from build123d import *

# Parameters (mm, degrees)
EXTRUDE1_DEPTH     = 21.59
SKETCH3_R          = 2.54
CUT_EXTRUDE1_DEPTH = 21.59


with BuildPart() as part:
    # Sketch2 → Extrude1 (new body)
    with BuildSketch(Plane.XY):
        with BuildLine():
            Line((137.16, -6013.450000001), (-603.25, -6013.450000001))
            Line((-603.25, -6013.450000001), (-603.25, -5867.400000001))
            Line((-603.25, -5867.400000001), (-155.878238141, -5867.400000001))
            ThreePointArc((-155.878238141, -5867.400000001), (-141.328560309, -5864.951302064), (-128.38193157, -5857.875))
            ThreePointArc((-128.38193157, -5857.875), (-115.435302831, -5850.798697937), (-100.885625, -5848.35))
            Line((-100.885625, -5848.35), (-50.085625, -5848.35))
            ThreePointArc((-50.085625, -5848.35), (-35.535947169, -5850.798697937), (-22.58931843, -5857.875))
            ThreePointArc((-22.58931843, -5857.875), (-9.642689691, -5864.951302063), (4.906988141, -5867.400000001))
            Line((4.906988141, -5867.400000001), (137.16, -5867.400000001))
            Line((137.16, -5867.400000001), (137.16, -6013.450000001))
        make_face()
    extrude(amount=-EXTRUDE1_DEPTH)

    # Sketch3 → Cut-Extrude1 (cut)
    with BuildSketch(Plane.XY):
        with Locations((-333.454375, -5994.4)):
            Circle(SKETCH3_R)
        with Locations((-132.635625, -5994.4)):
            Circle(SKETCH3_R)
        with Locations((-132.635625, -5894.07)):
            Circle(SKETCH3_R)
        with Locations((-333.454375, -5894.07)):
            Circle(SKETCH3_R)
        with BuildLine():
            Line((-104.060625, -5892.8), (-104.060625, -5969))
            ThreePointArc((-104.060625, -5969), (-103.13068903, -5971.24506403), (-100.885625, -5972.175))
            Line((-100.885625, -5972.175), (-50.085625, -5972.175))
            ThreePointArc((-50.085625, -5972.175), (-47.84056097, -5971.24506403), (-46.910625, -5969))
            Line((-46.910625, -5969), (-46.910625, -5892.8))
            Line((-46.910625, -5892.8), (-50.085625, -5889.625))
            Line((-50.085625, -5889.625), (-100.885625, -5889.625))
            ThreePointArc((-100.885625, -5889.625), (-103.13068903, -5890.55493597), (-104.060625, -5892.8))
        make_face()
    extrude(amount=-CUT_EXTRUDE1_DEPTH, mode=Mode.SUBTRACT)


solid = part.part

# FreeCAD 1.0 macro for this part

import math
import FreeCAD as App
import Part
import Sketcher
Q = App.Units.Quantity

doc = App.newDocument("Part")
body = doc.addObject("PartDesign::Body", "Body")

sketch1 = body.newObject("Sketcher::SketchObject", "Sketch")
sketch1.AttachmentSupport = (doc.getObject("XY_Plane"), [""])
sketch1.MapMode = "FlatFace"
sketch1.addGeometry(Part.LineSegment(App.Vector(-603.25, -6013.45, 0), App.Vector(137.16, -6013.45, 0)), False)
sketch1.addGeometry(Part.LineSegment(App.Vector(137.16, -6013.45, 0), App.Vector(137.16, -5867.4, 0)), False)
sketch1.addGeometry(Part.LineSegment(App.Vector(137.16, -5867.4, 0), App.Vector(4.906988, -5867.4, 0)), False)
sketch1.addGeometry(Part.ArcOfCircle(Part.Circle(App.Vector(4.906988, -5822.95, 0), App.Vector(0, 0, 1), 44.45), math.radians(-128.213211), math.radians(-90)), False)
sketch1.addGeometry(Part.ArcOfCircle(Part.Circle(App.Vector(-50.085625, -5892.8, 0), App.Vector(0, 0, 1), 44.45), math.radians(51.786789), math.radians(90)), False)
sketch1.addGeometry(Part.LineSegment(App.Vector(-50.085625, -5848.35, 0), App.Vector(-100.885625, -5848.35, 0)), False)
sketch1.addGeometry(Part.ArcOfCircle(Part.Circle(App.Vector(-100.885625, -5892.8, 0), App.Vector(0, 0, 1), 44.45), math.radians(90), math.radians(128.213211)), False)
sketch1.addGeometry(Part.ArcOfCircle(Part.Circle(App.Vector(-155.878238, -5822.95, 0), App.Vector(0, 0, 1), 44.45), math.radians(-90), math.radians(-51.786789)), False)
sketch1.addGeometry(Part.LineSegment(App.Vector(-155.878238, -5867.4, 0), App.Vector(-603.25, -5867.4, 0)), False)
sketch1.addGeometry(Part.LineSegment(App.Vector(-603.25, -5867.4, 0), App.Vector(-603.25, -6013.45, 0)), False)
sketch1.addConstraint(Sketcher.Constraint("Coincident", 0, 2, 1, 1))
sketch1.addConstraint(Sketcher.Constraint("Coincident", 1, 2, 2, 1))
sketch1.addConstraint(Sketcher.Constraint("Tangent", 2, 2, 3, 2))
sketch1.addConstraint(Sketcher.Constraint("Tangent", 3, 1, 4, 1))
sketch1.addConstraint(Sketcher.Constraint("Tangent", 4, 2, 5, 1))
sketch1.addConstraint(Sketcher.Constraint("Tangent", 5, 2, 6, 1))
sketch1.addConstraint(Sketcher.Constraint("Tangent", 6, 2, 7, 2))
sketch1.addConstraint(Sketcher.Constraint("Tangent", 7, 1, 8, 1))
sketch1.addConstraint(Sketcher.Constraint("Coincident", 8, 2, 9, 1))
sketch1.addConstraint(Sketcher.Constraint("Coincident", 9, 2, 0, 1))
sketch1.addConstraint(Sketcher.Constraint("Horizontal", 0))
sketch1.addConstraint(Sketcher.Constraint("Vertical", 1))
sketch1.addConstraint(Sketcher.Constraint("Horizontal", 2))
sketch1.addConstraint(Sketcher.Constraint("Horizontal", 5))
sketch1.addConstraint(Sketcher.Constraint("Horizontal", 8))
sketch1.addConstraint(Sketcher.Constraint("Vertical", 9))
sketch1.addConstraint(Sketcher.Constraint("Equal", 3, 4))
sketch1.addConstraint(Sketcher.Constraint("Equal", 4, 6))
sketch1.addConstraint(Sketcher.Constraint("Equal", 6, 7))
sketch1.addConstraint(Sketcher.Constraint("Horizontal", 3, 3, 7, 3))
sketch1.addConstraint(Sketcher.Constraint("DistanceX", 5, 2, 5, 1, Q("2 in")))
sketch1.addConstraint(Sketcher.Constraint("Radius", 3, Q("1.75 in")))
sketch1.addConstraint(Sketcher.Constraint("DistanceY", 4, 3, -1, 1, Q("232 in")))
sketch1.addConstraint(Sketcher.Constraint("DistanceY", 1, 2, -1, 1, Q("231 in")))
sketch1.addConstraint(Sketcher.Constraint("DistanceX", 0, 1, 0, 2, Q("29.15 in")))
sketch1.addConstraint(Sketcher.Constraint("DistanceY", 1, 1, 1, 2, Q("5.75 in")))
sketch1.addConstraint(Sketcher.Constraint("DistanceX", -1, 1, 0, 2, Q("5.4 in")))
sketch1.addConstraint(Sketcher.Constraint("DistanceX", 2, 2, 2, 1, 132.253012))
pad1 = body.newObject("PartDesign::Pad", "Pad")
pad1.Profile = sketch1
pad1.Length = Q("0.85 in")
pad1.Reversed = True

sketch2 = body.newObject("Sketcher::SketchObject", "Sketch001")
sketch2.AttachmentSupport = (doc.getObject("XY_Plane"), [""])
sketch2.MapMode = "FlatFace"
sketch2.addGeometry(Part.Circle(App.Vector(-333.454375, -5994.4, 0), App.Vector(0, 0, 1), 2.54), False)
sketch2.addGeometry(Part.Circle(App.Vector(-132.635625, -5994.4, 0), App.Vector(0, 0, 1), 2.54), False)
sketch2.addGeometry(Part.Circle(App.Vector(-132.635625, -5894.07, 0), App.Vector(0, 0, 1), 2.54), False)
sketch2.addGeometry(Part.Circle(App.Vector(-333.454375, -5894.07, 0), App.Vector(0, 0, 1), 2.54), False)
sketch2.addGeometry(Part.LineSegment(App.Vector(-104.060625, -5892.8, 0), App.Vector(-104.060625, -5969, 0)), False)
sketch2.addGeometry(Part.ArcOfCircle(Part.Circle(App.Vector(-100.885625, -5969, 0), App.Vector(0, 0, 1), 3.175), math.radians(-180), math.radians(-90)), False)
sketch2.addGeometry(Part.LineSegment(App.Vector(-100.885625, -5972.175, 0), App.Vector(-50.085625, -5972.175, 0)), False)
sketch2.addGeometry(Part.ArcOfCircle(Part.Circle(App.Vector(-50.085625, -5969, 0), App.Vector(0, 0, 1), 3.175), math.radians(-90), math.radians(0)), False)
sketch2.addGeometry(Part.LineSegment(App.Vector(-46.910625, -5969, 0), App.Vector(-46.910625, -5892.8, 0)), False)
sketch2.addGeometry(Part.LineSegment(App.Vector(-46.910625, -5892.8, 0), App.Vector(-50.085625, -5889.625, 0)), False)
sketch2.addGeometry(Part.LineSegment(App.Vector(-50.085625, -5889.625, 0), App.Vector(-100.885625, -5889.625, 0)), False)
sketch2.addGeometry(Part.ArcOfCircle(Part.Circle(App.Vector(-100.885625, -5892.8, 0), App.Vector(0, 0, 1), 3.175), math.radians(90), math.radians(180)), False)
sketch2.addConstraint(Sketcher.Constraint("Tangent", 4, 2, 5, 1))
sketch2.addConstraint(Sketcher.Constraint("Tangent", 5, 2, 6, 1))
sketch2.addConstraint(Sketcher.Constraint("Tangent", 6, 2, 7, 1))
sketch2.addConstraint(Sketcher.Constraint("Tangent", 7, 2, 8, 1))
sketch2.addConstraint(Sketcher.Constraint("Coincident", 8, 2, 9, 1))
sketch2.addConstraint(Sketcher.Constraint("Coincident", 9, 2, 10, 1))
sketch2.addConstraint(Sketcher.Constraint("Tangent", 10, 2, 11, 1))
sketch2.addConstraint(Sketcher.Constraint("Tangent", 11, 2, 4, 1))
sketch2.addConstraint(Sketcher.Constraint("Vertical", 4))
sketch2.addConstraint(Sketcher.Constraint("Horizontal", 6))
sketch2.addConstraint(Sketcher.Constraint("Vertical", 8))
sketch2.addConstraint(Sketcher.Constraint("Horizontal", 10))
sketch2.addConstraint(Sketcher.Constraint("Equal", 0, 1))
sketch2.addConstraint(Sketcher.Constraint("Equal", 1, 2))
sketch2.addConstraint(Sketcher.Constraint("Equal", 2, 3))
sketch2.addConstraint(Sketcher.Constraint("Equal", 5, 7))
sketch2.addConstraint(Sketcher.Constraint("Equal", 7, 11))
sketch2.addConstraint(Sketcher.Constraint("Horizontal", 0, 3, 1, 3))
sketch2.addConstraint(Sketcher.Constraint("Horizontal", 2, 3, 3, 3))
sketch2.addConstraint(Sketcher.Constraint("Horizontal", 11, 3, 8, 2))
sketch2.addConstraint(Sketcher.Constraint("Vertical", 1, 3, 2, 3))
sketch2.addConstraint(Sketcher.Constraint("Vertical", 0, 3, 3, 3))
sketch2.addConstraint(Sketcher.Constraint("Vertical", 6, 2, 9, 2))
sketch2.addConstraint(Sketcher.Constraint("Diameter", 0, Q("0.2 in")))
sketch2.addConstraint(Sketcher.Constraint("DistanceX", 6, 1, 6, 2, Q("2 in")))
sketch2.addConstraint(Sketcher.Constraint("DistanceY", 4, 2, 4, 1, Q("3 in")))
sketch2.addConstraint(Sketcher.Constraint("DistanceY", 0, 3, -1, 1, Q("236 in")))
sketch2.addConstraint(Sketcher.Constraint("DistanceY", 5, 3, -1, 1, Q("235 in")))
sketch2.addConstraint(Sketcher.Constraint("Radius", 5, Q("0.125 in")))
sketch2.addConstraint(Sketcher.Constraint("DistanceY", 2, 3, -1, 1, Q("232.05 in")))
sketch2.addConstraint(Sketcher.Constraint("DistanceX", 1, 3, 5, 3, Q("1.25 in")))
sketch2.addConstraint(Sketcher.Constraint("DistanceX", 0, 3, 1, 3, Q("7.90625 in")))
sketch2.addConstraint(Sketcher.Constraint("DistanceX", 0, 3, -1, 1, 333.454375))
pocket1 = body.newObject("PartDesign::Pocket", "Pocket")
pocket1.Profile = sketch2
pocket1.Length = Q("0.85 in")

doc.recompute()
